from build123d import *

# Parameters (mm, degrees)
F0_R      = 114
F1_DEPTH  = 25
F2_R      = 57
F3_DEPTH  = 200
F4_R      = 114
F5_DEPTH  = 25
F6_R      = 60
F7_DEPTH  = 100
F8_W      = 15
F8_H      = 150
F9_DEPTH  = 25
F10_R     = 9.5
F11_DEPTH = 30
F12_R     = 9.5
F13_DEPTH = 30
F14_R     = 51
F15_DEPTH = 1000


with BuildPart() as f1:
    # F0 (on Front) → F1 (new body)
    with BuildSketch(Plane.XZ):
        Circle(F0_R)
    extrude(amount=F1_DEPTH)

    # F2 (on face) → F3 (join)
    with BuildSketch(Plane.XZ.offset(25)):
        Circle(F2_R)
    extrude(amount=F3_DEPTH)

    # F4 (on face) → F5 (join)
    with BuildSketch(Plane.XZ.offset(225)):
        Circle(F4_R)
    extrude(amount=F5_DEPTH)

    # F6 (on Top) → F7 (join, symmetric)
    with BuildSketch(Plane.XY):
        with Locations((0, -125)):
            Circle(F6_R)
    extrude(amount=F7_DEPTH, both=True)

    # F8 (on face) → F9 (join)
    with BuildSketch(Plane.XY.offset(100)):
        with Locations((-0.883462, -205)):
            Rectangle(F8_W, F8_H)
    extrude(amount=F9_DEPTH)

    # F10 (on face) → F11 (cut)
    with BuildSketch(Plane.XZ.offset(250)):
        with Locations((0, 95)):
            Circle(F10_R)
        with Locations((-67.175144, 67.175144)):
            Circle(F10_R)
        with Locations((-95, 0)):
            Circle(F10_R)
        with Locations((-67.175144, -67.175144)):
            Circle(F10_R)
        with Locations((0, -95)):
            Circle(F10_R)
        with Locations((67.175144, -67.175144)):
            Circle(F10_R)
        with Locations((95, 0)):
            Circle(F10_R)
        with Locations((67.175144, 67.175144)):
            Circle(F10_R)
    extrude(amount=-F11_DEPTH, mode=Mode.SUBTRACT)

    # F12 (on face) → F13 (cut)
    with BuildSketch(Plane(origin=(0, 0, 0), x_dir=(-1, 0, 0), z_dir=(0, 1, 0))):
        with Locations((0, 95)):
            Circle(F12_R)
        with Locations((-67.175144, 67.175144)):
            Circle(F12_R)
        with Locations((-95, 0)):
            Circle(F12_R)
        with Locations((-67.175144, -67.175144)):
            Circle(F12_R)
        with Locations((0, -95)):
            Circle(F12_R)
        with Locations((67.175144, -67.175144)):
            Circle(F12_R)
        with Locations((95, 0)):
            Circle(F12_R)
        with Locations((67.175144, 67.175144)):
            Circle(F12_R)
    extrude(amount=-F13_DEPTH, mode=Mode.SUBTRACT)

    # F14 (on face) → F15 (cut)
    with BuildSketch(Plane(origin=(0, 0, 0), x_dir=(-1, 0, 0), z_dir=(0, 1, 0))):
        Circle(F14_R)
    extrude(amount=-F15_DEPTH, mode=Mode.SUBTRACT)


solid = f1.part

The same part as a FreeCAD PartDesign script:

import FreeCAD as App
import Part
import Sketcher
from FreeCAD import Vector


def add_polygon(sketch, points):
    """Adds a closed chain of lines whose ends are joined by coincident constraints."""
    first, n = sketch.GeometryCount, len(points)
    for a, b in zip(points, points[1:] + points[:1]):
        sketch.addGeometry(Part.LineSegment(App.Vector(*a, 0), App.Vector(*b, 0)), False)
    for i in range(n):
        sketch.addConstraint(Sketcher.Constraint("Coincident", first + i, 2, first + (i + 1) % n, 1))

doc = App.newDocument("Part")
body = doc.addObject("PartDesign::Body", "Body")

# Sketch on XZ plane
sketch1 = body.newObject("Sketcher::SketchObject", "Sketch")
sketch1.AttachmentSupport = (doc.getObject("XZ_Plane"), [""])
sketch1.MapMode = "FlatFace"
sketch1.addGeometry(Part.Circle(Vector(0, 0, 0), Vector(0, 0, 1), 114), False)
sketch1.addConstraint(Sketcher.Constraint("Coincident", 0, 3, -1, 1))
sketch1.addConstraint(Sketcher.Constraint("Diameter", 0, 228.0))
pad1 = body.newObject("PartDesign::Pad", "Pad")
pad1.Profile = sketch1
pad1.Length = 25

# Sketch on XZ plane
sketch2 = body.newObject("Sketcher::SketchObject", "Sketch001")
sketch2.AttachmentSupport = (doc.getObject("XZ_Plane"), [""])
sketch2.MapMode = "FlatFace"
sketch2.AttachmentOffset = App.Placement(Vector(0, 0, 25), App.Rotation())
sketch2.addGeometry(Part.Circle(Vector(0, 0, 0), Vector(0, 0, 1), 57), False)
sketch2.addConstraint(Sketcher.Constraint("Coincident", 0, 3, -1, 1))
sketch2.addConstraint(Sketcher.Constraint("Diameter", 0, 114.0))
pad2 = body.newObject("PartDesign::Pad", "Pad001")
pad2.Profile = sketch2
pad2.Length = 200

# Sketch on XZ plane
sketch3 = body.newObject("Sketcher::SketchObject", "Sketch002")
sketch3.AttachmentSupport = (doc.getObject("XZ_Plane"), [""])
sketch3.MapMode = "FlatFace"
sketch3.AttachmentOffset = App.Placement(Vector(0, 0, 225), App.Rotation())
sketch3.addGeometry(Part.Circle(Vector(0, 0, 0), Vector(0, 0, 1), 114), False)
sketch3.addConstraint(Sketcher.Constraint("Coincident", 0, 3, -1, 1))
sketch3.addConstraint(Sketcher.Constraint("Diameter", 0, 228.0))
pad3 = body.newObject("PartDesign::Pad", "Pad002")
pad3.Profile = sketch3
pad3.Length = 25

# Sketch on XY plane
sketch4 = body.newObject("Sketcher::SketchObject", "Sketch003")
sketch4.AttachmentSupport = (doc.getObject("XY_Plane"), [""])
sketch4.MapMode = "FlatFace"
sketch4.addGeometry(Part.Circle(Vector(0, -125, 0), Vector(0, 0, 1), 60), False)
sketch4.addConstraint(Sketcher.Constraint("PointOnObject", 0, 3, -2))
sketch4.addConstraint(Sketcher.Constraint("Diameter", 0, 120.0))
sketch4.addConstraint(Sketcher.Constraint("DistanceY", 0, 3, -1, 1, 125.0))
pad4 = body.newObject("PartDesign::Pad", "Pad003")
pad4.Profile = sketch4
pad4.Length = 200
pad4.Midplane = True

# Sketch on XY plane
sketch5 = body.newObject("Sketcher::SketchObject", "Sketch004")
sketch5.AttachmentSupport = (doc.getObject("XY_Plane"), [""])
sketch5.MapMode = "FlatFace"
sketch5.AttachmentOffset = App.Placement(Vector(0, 0, 100), App.Rotation())
add_polygon(sketch5, [(-8, -130), (-8, -280), (7, -280), (7, -130)])  # lines 0-3
sketch5.addConstraint(Sketcher.Constraint("Vertical", 0))
sketch5.addConstraint(Sketcher.Constraint("Horizontal", 1))
sketch5.addConstraint(Sketcher.Constraint("Vertical", 2))
sketch5.addConstraint(Sketcher.Constraint("Horizontal", 3))
sketch5.addConstraint(Sketcher.Constraint("DistanceX", 1, 1, 1, 2, 15.0))
sketch5.addConstraint(Sketcher.Constraint("DistanceY", 0, 2, 0, 1, 150.0))
sketch5.addConstraint(Sketcher.Constraint("DistanceY", 0, 2, -1, 1, 280.0))
sketch5.addConstraint(Sketcher.Constraint("DistanceX", -1, 1, 1, 2, 6.616538))
pad5 = body.newObject("PartDesign::Pad", "Pad004")
pad5.Profile = sketch5
pad5.Length = 25

# Sketch on XZ plane
sketch6 = body.newObject("Sketcher::SketchObject", "Sketch005")
sketch6.AttachmentSupport = (doc.getObject("XZ_Plane"), [""])
sketch6.MapMode = "FlatFace"
sketch6.AttachmentOffset = App.Placement(Vector(0, 0, 250), App.Rotation())
sketch6.addGeometry(Part.Circle(Vector(0, 95, 0), Vector(0, 0, 1), 10), False)
sketch6.addGeometry(Part.Circle(Vector(-67, 67, 0), Vector(0, 0, 1), 10), False)
sketch6.addGeometry(Part.Circle(Vector(-95, 0, 0), Vector(0, 0, 1), 10), False)
sketch6.addGeometry(Part.Circle(Vector(-67, -67, 0), Vector(0, 0, 1), 10), False)
sketch6.addGeometry(Part.Circle(Vector(0, -95, 0), Vector(0, 0, 1), 10), False)
sketch6.addGeometry(Part.Circle(Vector(67, -67, 0), Vector(0, 0, 1), 10), False)
sketch6.addGeometry(Part.Circle(Vector(95, 0, 0), Vector(0, 0, 1), 10), False)
sketch6.addGeometry(Part.Circle(Vector(67, 67, 0), Vector(0, 0, 1), 10), False)
sketch6.addConstraint(Sketcher.Constraint("Equal", 0, 1))
sketch6.addConstraint(Sketcher.Constraint("Equal", 1, 2))
sketch6.addConstraint(Sketcher.Constraint("Equal", 2, 3))
sketch6.addConstraint(Sketcher.Constraint("Equal", 3, 4))
sketch6.addConstraint(Sketcher.Constraint("Equal", 4, 5))
sketch6.addConstraint(Sketcher.Constraint("Equal", 5, 6))
sketch6.addConstraint(Sketcher.Constraint("Equal", 6, 7))
sketch6.addConstraint(Sketcher.Constraint("Symmetric", 0, 3, 4, 3, -1, 1))
sketch6.addConstraint(Sketcher.Constraint("Symmetric", 1, 3, 5, 3, -1, 1))
sketch6.addConstraint(Sketcher.Constraint("Symmetric", 2, 3, 6, 3, -1, 1))
sketch6.addConstraint(Sketcher.Constraint("Symmetric", 3, 3, 7, 3, -1, 1))
sketch6.addConstraint(Sketcher.Constraint("Symmetric", 3, 3, 5, 3, -2))
sketch6.addConstraint(Sketcher.Constraint("PointOnObject", 0, 3, -2))
sketch6.addConstraint(Sketcher.Constraint("PointOnObject", 2, 3, -1))
sketch6.addConstraint(Sketcher.Constraint("Diameter", 0, 19.0))
sketch6.addConstraint(Sketcher.Constraint("DistanceY", -1, 1, 0, 3, 95.0))
sketch6.addConstraint(Sketcher.Constraint("DistanceX", 2, 3, -1, 1, 95.0))
sketch6.addConstraint(Sketcher.Constraint("DistanceY", 3, 3, 1, 3, 134.350288))
sketch6.addConstraint(Sketcher.Constraint("DistanceX", 3, 3, 5, 3, 134.350288))
pocket1 = body.newObject("PartDesign::Pocket", "Pocket")
pocket1.Profile = sketch6
pocket1.Length = 30

# Sketch on XZ plane
sketch7 = body.newObject("Sketcher::SketchObject", "Sketch006")
sketch7.AttachmentSupport = (doc.getObject("XZ_Plane"), [""])
sketch7.MapMode = "FlatFace"
sketch7.addGeometry(Part.Circle(Vector(0, 95, 0), Vector(0, 0, 1), 10), False)
sketch7.addGeometry(Part.Circle(Vector(67, 67, 0), Vector(0, 0, 1), 10), False)
sketch7.addGeometry(Part.Circle(Vector(95, 0, 0), Vector(0, 0, 1), 10), False)
sketch7.addGeometry(Part.Circle(Vector(67, -67, 0), Vector(0, 0, 1), 10), False)
sketch7.addGeometry(Part.Circle(Vector(0, -95, 0), Vector(0, 0, 1), 10), False)
sketch7.addGeometry(Part.Circle(Vector(-67, -67, 0), Vector(0, 0, 1), 10), False)
sketch7.addGeometry(Part.Circle(Vector(-95, 0, 0), Vector(0, 0, 1), 10), False)
sketch7.addGeometry(Part.Circle(Vector(-67, 67, 0), Vector(0, 0, 1), 10), False)
sketch7.addConstraint(Sketcher.Constraint("Equal", 0, 1))
sketch7.addConstraint(Sketcher.Constraint("Equal", 1, 2))
sketch7.addConstraint(Sketcher.Constraint("Equal", 2, 3))
sketch7.addConstraint(Sketcher.Constraint("Equal", 3, 4))
sketch7.addConstraint(Sketcher.Constraint("Equal", 4, 5))
sketch7.addConstraint(Sketcher.Constraint("Equal", 5, 6))
sketch7.addConstraint(Sketcher.Constraint("Equal", 6, 7))
sketch7.addConstraint(Sketcher.Constraint("Symmetric", 0, 3, 4, 3, -1, 1))
sketch7.addConstraint(Sketcher.Constraint("Symmetric", 1, 3, 5, 3, -1, 1))
sketch7.addConstraint(Sketcher.Constraint("Symmetric", 2, 3, 6, 3, -1, 1))
sketch7.addConstraint(Sketcher.Constraint("Symmetric", 3, 3, 7, 3, -1, 1))
sketch7.addConstraint(Sketcher.Constraint("Symmetric", 3, 3, 5, 3, -2))
sketch7.addConstraint(Sketcher.Constraint("PointOnObject", 0, 3, -2))
sketch7.addConstraint(Sketcher.Constraint("PointOnObject", 2, 3, -1))
sketch7.addConstraint(Sketcher.Constraint("Diameter", 0, 19.0))
sketch7.addConstraint(Sketcher.Constraint("DistanceY", -1, 1, 0, 3, 95.0))
sketch7.addConstraint(Sketcher.Constraint("DistanceX", -1, 1, 2, 3, 95.0))
sketch7.addConstraint(Sketcher.Constraint("DistanceY", 3, 3, 1, 3, 134.350288))
sketch7.addConstraint(Sketcher.Constraint("DistanceX", 5, 3, 3, 3, 134.350288))
pocket2 = body.newObject("PartDesign::Pocket", "Pocket001")
pocket2.Profile = sketch7
pocket2.Length = 30
pocket2.Reversed = True

# Sketch on XZ plane
sketch8 = body.newObject("Sketcher::SketchObject", "Sketch007")
sketch8.AttachmentSupport = (doc.getObject("XZ_Plane"), [""])
sketch8.MapMode = "FlatFace"
sketch8.addGeometry(Part.Circle(Vector(0, 0, 0), Vector(0, 0, 1), 51), False)
sketch8.addConstraint(Sketcher.Constraint("Coincident", 0, 3, -1, 1))
sketch8.addConstraint(Sketcher.Constraint("Diameter", 0, 102.0))
pocket3 = body.newObject("PartDesign::Pocket", "Pocket002")
pocket3.Profile = sketch8
pocket3.Length = 1000
pocket3.Reversed = True

doc.recompute()
